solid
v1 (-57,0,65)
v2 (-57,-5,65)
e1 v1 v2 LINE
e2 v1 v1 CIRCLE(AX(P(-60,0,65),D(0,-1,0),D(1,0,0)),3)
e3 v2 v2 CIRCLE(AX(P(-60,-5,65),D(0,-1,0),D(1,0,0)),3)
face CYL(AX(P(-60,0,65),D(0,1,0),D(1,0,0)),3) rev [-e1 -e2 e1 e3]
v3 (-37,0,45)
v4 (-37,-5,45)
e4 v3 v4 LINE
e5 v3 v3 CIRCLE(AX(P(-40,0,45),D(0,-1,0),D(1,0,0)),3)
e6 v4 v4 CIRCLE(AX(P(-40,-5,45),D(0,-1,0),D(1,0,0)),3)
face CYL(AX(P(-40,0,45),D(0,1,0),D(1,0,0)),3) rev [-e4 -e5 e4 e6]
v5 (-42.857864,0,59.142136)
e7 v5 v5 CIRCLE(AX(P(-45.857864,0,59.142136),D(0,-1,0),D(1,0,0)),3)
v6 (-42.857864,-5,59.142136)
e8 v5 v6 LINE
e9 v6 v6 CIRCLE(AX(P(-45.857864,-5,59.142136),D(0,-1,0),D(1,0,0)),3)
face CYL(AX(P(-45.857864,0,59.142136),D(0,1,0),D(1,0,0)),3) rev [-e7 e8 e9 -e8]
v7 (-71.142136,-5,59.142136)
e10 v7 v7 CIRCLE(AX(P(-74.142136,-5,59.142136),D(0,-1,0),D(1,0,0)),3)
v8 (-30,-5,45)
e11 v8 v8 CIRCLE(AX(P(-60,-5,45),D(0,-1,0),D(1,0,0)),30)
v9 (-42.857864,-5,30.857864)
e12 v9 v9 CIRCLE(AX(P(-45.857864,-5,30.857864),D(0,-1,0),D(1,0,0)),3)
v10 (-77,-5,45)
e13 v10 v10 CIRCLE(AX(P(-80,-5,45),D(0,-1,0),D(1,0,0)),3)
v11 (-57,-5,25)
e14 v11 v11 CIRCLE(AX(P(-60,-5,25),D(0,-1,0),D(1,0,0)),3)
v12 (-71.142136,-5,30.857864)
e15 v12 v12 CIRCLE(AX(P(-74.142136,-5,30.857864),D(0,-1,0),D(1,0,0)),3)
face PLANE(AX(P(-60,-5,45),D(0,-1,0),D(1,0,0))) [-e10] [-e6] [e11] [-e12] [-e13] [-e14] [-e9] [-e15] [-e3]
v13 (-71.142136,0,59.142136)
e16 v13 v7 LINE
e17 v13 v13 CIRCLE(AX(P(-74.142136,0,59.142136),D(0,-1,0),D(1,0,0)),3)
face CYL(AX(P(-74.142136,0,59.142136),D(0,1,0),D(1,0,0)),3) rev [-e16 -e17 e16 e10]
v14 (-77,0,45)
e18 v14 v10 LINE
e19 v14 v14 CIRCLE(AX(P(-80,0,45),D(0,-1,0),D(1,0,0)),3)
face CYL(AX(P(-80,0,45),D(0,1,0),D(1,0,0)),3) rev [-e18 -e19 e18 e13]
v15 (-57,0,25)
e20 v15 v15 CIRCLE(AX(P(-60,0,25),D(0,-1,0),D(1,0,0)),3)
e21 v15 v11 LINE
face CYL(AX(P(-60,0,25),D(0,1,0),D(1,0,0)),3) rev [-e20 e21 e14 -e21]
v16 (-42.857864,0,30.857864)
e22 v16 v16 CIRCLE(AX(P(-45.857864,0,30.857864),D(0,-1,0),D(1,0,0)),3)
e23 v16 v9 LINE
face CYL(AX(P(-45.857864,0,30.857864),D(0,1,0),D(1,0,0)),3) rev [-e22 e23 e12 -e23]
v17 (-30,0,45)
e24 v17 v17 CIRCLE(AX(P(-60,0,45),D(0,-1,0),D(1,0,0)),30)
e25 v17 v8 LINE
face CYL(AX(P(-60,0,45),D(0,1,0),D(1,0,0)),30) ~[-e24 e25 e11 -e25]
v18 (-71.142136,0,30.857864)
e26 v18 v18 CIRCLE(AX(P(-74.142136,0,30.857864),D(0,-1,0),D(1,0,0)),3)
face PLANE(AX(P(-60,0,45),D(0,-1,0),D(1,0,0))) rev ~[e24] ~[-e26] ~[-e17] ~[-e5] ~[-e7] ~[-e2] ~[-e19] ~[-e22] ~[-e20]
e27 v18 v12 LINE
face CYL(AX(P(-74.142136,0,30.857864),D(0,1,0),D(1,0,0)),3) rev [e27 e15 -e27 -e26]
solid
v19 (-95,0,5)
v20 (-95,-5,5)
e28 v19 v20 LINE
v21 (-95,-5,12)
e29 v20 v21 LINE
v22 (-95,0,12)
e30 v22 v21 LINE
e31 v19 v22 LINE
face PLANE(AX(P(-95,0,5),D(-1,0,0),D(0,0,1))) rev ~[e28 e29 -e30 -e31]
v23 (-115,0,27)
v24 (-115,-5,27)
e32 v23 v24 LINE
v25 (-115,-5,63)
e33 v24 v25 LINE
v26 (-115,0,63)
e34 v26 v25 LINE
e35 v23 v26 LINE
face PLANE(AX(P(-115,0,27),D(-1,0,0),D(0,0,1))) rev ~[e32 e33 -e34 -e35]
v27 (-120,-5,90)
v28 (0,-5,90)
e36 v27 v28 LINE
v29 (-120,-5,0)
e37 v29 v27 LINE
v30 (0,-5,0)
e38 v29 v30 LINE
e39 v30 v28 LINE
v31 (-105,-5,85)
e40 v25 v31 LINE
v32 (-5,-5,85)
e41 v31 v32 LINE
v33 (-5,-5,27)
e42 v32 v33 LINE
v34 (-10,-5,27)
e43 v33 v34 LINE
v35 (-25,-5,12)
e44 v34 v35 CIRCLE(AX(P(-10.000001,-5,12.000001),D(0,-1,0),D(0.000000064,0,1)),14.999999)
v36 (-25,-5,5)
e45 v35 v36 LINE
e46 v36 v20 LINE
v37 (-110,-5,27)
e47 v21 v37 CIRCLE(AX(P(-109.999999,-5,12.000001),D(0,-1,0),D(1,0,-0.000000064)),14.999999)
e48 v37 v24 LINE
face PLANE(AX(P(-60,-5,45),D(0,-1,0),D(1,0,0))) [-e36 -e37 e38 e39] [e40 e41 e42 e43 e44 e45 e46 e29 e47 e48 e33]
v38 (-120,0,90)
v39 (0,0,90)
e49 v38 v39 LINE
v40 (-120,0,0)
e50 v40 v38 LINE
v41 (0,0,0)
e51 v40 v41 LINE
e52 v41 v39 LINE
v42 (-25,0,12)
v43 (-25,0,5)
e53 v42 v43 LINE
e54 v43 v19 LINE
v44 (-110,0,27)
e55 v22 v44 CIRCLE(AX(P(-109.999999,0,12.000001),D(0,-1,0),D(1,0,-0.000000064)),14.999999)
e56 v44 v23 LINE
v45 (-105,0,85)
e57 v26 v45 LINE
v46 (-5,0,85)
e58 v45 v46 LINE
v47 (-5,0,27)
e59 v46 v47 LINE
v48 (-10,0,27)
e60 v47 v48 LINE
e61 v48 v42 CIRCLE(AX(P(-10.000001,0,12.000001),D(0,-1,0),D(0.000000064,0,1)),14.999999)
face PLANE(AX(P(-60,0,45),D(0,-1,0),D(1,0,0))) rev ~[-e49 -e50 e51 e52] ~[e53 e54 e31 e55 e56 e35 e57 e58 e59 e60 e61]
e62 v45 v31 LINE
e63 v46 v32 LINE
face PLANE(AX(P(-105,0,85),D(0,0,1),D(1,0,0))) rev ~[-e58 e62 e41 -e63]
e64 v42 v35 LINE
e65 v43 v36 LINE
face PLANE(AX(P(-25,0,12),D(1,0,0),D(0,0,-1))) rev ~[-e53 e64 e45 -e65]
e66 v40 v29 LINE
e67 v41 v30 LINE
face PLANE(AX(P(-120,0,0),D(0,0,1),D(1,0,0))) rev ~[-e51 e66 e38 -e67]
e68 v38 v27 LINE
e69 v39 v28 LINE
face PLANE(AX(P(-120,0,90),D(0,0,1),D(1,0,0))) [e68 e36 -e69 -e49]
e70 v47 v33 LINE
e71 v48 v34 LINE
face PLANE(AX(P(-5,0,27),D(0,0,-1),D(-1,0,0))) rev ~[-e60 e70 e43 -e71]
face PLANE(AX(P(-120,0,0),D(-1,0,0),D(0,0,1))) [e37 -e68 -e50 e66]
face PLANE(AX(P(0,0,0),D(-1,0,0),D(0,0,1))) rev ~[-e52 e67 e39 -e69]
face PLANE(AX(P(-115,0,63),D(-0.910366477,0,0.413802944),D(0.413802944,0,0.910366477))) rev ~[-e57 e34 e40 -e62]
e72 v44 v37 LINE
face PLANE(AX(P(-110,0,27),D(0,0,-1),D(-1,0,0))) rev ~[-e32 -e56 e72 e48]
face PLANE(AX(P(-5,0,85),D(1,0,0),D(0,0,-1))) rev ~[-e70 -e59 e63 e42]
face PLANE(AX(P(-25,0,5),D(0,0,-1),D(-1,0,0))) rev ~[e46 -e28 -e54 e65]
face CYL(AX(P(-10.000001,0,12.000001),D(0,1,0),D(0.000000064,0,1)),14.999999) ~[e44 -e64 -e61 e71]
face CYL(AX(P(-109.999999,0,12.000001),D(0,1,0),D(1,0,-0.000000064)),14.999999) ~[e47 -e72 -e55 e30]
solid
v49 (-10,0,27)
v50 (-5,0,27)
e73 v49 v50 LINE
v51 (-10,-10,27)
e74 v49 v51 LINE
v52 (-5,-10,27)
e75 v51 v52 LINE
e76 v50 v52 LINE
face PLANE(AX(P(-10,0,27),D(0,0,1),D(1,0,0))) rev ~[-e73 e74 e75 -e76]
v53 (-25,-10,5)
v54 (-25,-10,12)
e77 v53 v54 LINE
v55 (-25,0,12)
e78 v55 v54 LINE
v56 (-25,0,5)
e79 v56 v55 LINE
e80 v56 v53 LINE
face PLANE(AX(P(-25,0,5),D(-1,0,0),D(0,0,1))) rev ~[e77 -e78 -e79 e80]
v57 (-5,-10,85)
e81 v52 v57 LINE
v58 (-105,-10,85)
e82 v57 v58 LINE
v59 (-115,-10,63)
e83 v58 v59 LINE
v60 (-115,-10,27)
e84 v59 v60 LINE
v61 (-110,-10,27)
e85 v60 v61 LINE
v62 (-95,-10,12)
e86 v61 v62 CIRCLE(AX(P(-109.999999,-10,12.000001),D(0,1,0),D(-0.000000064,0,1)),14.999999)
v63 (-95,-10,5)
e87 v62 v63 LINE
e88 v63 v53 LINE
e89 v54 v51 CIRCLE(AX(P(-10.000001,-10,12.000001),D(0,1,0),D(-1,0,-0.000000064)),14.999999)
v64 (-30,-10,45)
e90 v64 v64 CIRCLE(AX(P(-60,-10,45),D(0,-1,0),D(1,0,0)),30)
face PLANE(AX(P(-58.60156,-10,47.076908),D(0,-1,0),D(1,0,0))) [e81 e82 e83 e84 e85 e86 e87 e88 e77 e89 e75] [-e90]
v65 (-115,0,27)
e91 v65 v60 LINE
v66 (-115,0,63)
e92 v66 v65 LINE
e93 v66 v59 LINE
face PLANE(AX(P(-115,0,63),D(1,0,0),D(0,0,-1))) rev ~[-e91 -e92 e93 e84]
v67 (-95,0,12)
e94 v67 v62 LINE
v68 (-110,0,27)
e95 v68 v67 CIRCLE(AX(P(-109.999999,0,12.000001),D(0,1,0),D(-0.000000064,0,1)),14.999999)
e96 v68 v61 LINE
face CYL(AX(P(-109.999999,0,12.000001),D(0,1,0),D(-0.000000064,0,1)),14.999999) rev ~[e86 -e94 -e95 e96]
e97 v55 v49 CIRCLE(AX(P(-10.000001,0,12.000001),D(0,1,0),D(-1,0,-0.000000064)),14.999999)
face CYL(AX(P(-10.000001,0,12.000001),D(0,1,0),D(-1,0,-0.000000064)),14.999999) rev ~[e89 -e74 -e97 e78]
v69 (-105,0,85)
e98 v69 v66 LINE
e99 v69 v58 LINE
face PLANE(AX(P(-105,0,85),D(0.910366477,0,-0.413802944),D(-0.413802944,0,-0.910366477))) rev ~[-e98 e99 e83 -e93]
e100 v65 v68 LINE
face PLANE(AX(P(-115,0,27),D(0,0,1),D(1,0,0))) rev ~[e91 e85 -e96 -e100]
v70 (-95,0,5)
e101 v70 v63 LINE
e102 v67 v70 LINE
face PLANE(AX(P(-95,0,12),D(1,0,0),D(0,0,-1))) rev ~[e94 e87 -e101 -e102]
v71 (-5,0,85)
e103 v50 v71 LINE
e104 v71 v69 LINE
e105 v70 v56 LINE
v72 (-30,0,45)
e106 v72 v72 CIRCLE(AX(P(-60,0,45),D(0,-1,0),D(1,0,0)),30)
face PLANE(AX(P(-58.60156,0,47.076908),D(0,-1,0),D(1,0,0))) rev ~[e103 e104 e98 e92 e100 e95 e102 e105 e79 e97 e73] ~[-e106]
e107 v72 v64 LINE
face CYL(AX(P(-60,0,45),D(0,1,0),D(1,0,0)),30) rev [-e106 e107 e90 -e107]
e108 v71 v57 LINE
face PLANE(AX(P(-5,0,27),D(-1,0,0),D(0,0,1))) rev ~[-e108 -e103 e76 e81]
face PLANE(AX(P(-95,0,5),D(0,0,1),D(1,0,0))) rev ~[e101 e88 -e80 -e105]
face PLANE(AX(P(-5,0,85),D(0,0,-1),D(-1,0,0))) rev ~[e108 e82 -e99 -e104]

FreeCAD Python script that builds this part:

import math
import FreeCAD as App
import Part
import Sketcher

doc = App.newDocument("Part")
body = doc.addObject("PartDesign::Body", "Body")
body.AllowCompound = True

sketch1 = body.newObject("Sketcher::SketchObject", "Sketch")
sketch1.AttachmentSupport = (doc.getObject("XZ_Plane"), [""])
sketch1.MapMode = "FlatFace"
sketch1.addGeometry(Part.LineSegment(App.Vector(-120, 90, 0), App.Vector(-120, 0, 0)), False)
sketch1.addGeometry(Part.LineSegment(App.Vector(-120, 0, 0), App.Vector(0, 0, 0)), False)
sketch1.addGeometry(Part.LineSegment(App.Vector(0, 0, 0), App.Vector(0, 90, 0)), False)
sketch1.addGeometry(Part.LineSegment(App.Vector(0, 90, 0), App.Vector(-120, 90, 0)), False)
sketch1.addGeometry(Part.ArcOfCircle(Part.Circle(App.Vector(-110, 12, 0), App.Vector(0, 0, 1), 15), math.radians(0), math.radians(90)), False)
sketch1.addGeometry(Part.LineSegment(App.Vector(-110, 27, 0), App.Vector(-115, 27, 0)), False)
sketch1.addGeometry(Part.LineSegment(App.Vector(-115, 27, 0), App.Vector(-115, 63, 0)), False)
sketch1.addGeometry(Part.LineSegment(App.Vector(-115, 63, 0), App.Vector(-105, 85, 0)), False)
sketch1.addGeometry(Part.LineSegment(App.Vector(-105, 85, 0), App.Vector(-5, 85, 0)), False)
sketch1.addGeometry(Part.LineSegment(App.Vector(-5, 85, 0), App.Vector(-5, 27, 0)), False)
sketch1.addGeometry(Part.LineSegment(App.Vector(-5, 27, 0), App.Vector(-10, 27, 0)), False)
sketch1.addGeometry(Part.ArcOfCircle(Part.Circle(App.Vector(-10, 12, 0), App.Vector(0, 0, 1), 15), math.radians(90), math.radians(180)), False)
sketch1.addGeometry(Part.LineSegment(App.Vector(-25, 12, 0), App.Vector(-25, 5, 0)), False)
sketch1.addGeometry(Part.LineSegment(App.Vector(-25, 5, 0), App.Vector(-95, 5, 0)), False)
sketch1.addGeometry(Part.LineSegment(App.Vector(-95, 5, 0), App.Vector(-95, 12, 0)), False)
sketch1.addGeometry(Part.Circle(App.Vector(-60, 45, 0), App.Vector(0, 0, 1), 30), False)
sketch1.addGeometry(Part.Circle(App.Vector(-74.1, 30.9, 0), App.Vector(0, 0, 1), 3), False)
sketch1.addGeometry(Part.Circle(App.Vector(-60, 25, 0), App.Vector(0, 0, 1), 3), False)
sketch1.addGeometry(Part.Circle(App.Vector(-45.9, 30.9, 0), App.Vector(0, 0, 1), 3), False)
sketch1.addGeometry(Part.Circle(App.Vector(-80, 45, 0), App.Vector(0, 0, 1), 3), False)
sketch1.addGeometry(Part.Circle(App.Vector(-74.1, 59.1, 0), App.Vector(0, 0, 1), 3), False)
sketch1.addGeometry(Part.Circle(App.Vector(-40, 45, 0), App.Vector(0, 0, 1), 3), False)
sketch1.addGeometry(Part.Circle(App.Vector(-60, 65, 0), App.Vector(0, 0, 1), 3), False)
sketch1.addGeometry(Part.Circle(App.Vector(-45.9, 59.1, 0), App.Vector(0, 0, 1), 3), False)
sketch1.addConstraint(Sketcher.Constraint("Coincident", 0, 2, 1, 1))
sketch1.addConstraint(Sketcher.Constraint("Coincident", 1, 2, 2, 1))
sketch1.addConstraint(Sketcher.Constraint("Coincident", 2, 2, 3, 1))
sketch1.addConstraint(Sketcher.Constraint("Coincident", 3, 2, 0, 1))
sketch1.addConstraint(Sketcher.Constraint("Tangent", 4, 2, 5, 1))
sketch1.addConstraint(Sketcher.Constraint("Coincident", 5, 2, 6, 1))
sketch1.addConstraint(Sketcher.Constraint("Coincident", 6, 2, 7, 1))
sketch1.addConstraint(Sketcher.Constraint("Coincident", 7, 2, 8, 1))
sketch1.addConstraint(Sketcher.Constraint("Coincident", 8, 2, 9, 1))
sketch1.addConstraint(Sketcher.Constraint("Coincident", 9, 2, 10, 1))
sketch1.addConstraint(Sketcher.Constraint("Tangent", 10, 2, 11, 1))
sketch1.addConstraint(Sketcher.Constraint("Tangent", 11, 2, 12, 1))
sketch1.addConstraint(Sketcher.Constraint("Coincident", 12, 2, 13, 1))
sketch1.addConstraint(Sketcher.Constraint("Coincident", 13, 2, 14, 1))
sketch1.addConstraint(Sketcher.Constraint("Tangent", 14, 2, 4, 1))
sketch1.addConstraint(Sketcher.Constraint("Vertical", 0))
sketch1.addConstraint(Sketcher.Constraint("Horizontal", 1))
sketch1.addConstraint(Sketcher.Constraint("Vertical", 2))
sketch1.addConstraint(Sketcher.Constraint("Horizontal", 3))
sketch1.addConstraint(Sketcher.Constraint("Horizontal", 5))
sketch1.addConstraint(Sketcher.Constraint("Vertical", 6))
sketch1.addConstraint(Sketcher.Constraint("Horizontal", 8))
sketch1.addConstraint(Sketcher.Constraint("Vertical", 9))
sketch1.addConstraint(Sketcher.Constraint("Horizontal", 10))
sketch1.addConstraint(Sketcher.Constraint("Vertical", 12))
sketch1.addConstraint(Sketcher.Constraint("Horizontal", 13))
sketch1.addConstraint(Sketcher.Constraint("Vertical", 14))
sketch1.addConstraint(Sketcher.Constraint("Coincident", 1, 2, -1, 1))
sketch1.addConstraint(Sketcher.Constraint("Equal", 4, 11))
sketch1.addConstraint(Sketcher.Constraint("Equal", 16, 17))
sketch1.addConstraint(Sketcher.Constraint("Equal", 17, 18))
sketch1.addConstraint(Sketcher.Constraint("Equal", 18, 19))
sketch1.addConstraint(Sketcher.Constraint("Equal", 19, 20))
sketch1.addConstraint(Sketcher.Constraint("Equal", 20, 21))
sketch1.addConstraint(Sketcher.Constraint("Equal", 21, 22))
sketch1.addConstraint(Sketcher.Constraint("Equal", 22, 23))
sketch1.addConstraint(Sketcher.Constraint("Horizontal", 4, 3, 11, 3))
sketch1.addConstraint(Sketcher.Constraint("Horizontal", 16, 3, 18, 3))
sketch1.addConstraint(Sketcher.Constraint("Horizontal", 15, 3, 19, 3))
sketch1.addConstraint(Sketcher.Constraint("Horizontal", 19, 3, 21, 3))
sketch1.addConstraint(Sketcher.Constraint("Horizontal", 20, 3, 23, 3))
sketch1.addConstraint(Sketcher.Constraint("Vertical", 15, 3, 17, 3))
sketch1.addConstraint(Sketcher.Constraint("Vertical", 16, 3, 20, 3))
sketch1.addConstraint(Sketcher.Constraint("Vertical", 17, 3, 22, 3))
sketch1.addConstraint(Sketcher.Constraint("Vertical", 18, 3, 23, 3))
sketch1.addConstraint(Sketcher.Constraint("Equal", 5, 10))
sketch1.addConstraint(Sketcher.Constraint("Diameter", 15, 60.0))
sketch1.addConstraint(Sketcher.Constraint("Diameter", 16, 6.0))
sketch1.addConstraint(Sketcher.Constraint("Radius", 4, 14.999999))
sketch1.addConstraint(Sketcher.Constraint("DistanceX", 1, 1, 1, 2, 120.0))
sketch1.addConstraint(Sketcher.Constraint("DistanceX", 5, 2, 5, 1, 5.0))
sketch1.addConstraint(Sketcher.Constraint("DistanceX", 8, 1, 8, 2, 100.0))
sketch1.addConstraint(Sketcher.Constraint("DistanceX", 13, 2, 13, 1, 70.0))
sketch1.addConstraint(Sketcher.Constraint("DistanceY", 0, 2, 0, 1, 90.0))
sketch1.addConstraint(Sketcher.Constraint("DistanceY", 6, 1, 6, 2, 36.0))
sketch1.addConstraint(Sketcher.Constraint("DistanceY", 9, 2, 9, 1, 58.0))
sketch1.addConstraint(Sketcher.Constraint("DistanceY", 12, 2, 12, 1, 7.0))
sketch1.addConstraint(Sketcher.Constraint("DistanceX", 4, 3, -1, 1, 109.999999))
sketch1.addConstraint(Sketcher.Constraint("DistanceY", -1, 1, 4, 3, 12.000001))
sketch1.addConstraint(Sketcher.Constraint("DistanceX", 15, 3, -1, 1, 60.0))
sketch1.addConstraint(Sketcher.Constraint("DistanceY", -1, 1, 15, 3, 45.0))
sketch1.addConstraint(Sketcher.Constraint("DistanceY", -1, 1, 17, 3, 25.0))
sketch1.addConstraint(Sketcher.Constraint("DistanceX", 19, 3, -1, 1, 80.0))
sketch1.addConstraint(Sketcher.Constraint("DistanceX", 21, 3, -1, 1, 40.0))
sketch1.addConstraint(Sketcher.Constraint("DistanceY", -1, 1, 22, 3, 65.0))
sketch1.addConstraint(Sketcher.Constraint("DistanceX", 16, 3, 18, 3, 28.284272))
sketch1.addConstraint(Sketcher.Constraint("DistanceX", 16, 3, -1, 1, 74.142136))
sketch1.addConstraint(Sketcher.Constraint("DistanceY", -1, 1, 16, 3, 30.857864))
sketch1.addConstraint(Sketcher.Constraint("DistanceY", -1, 1, 20, 3, 59.142136))
pad1 = body.newObject("PartDesign::Pad", "Pad")
pad1.Profile = sketch1
pad1.Length = 5
body2 = doc.addObject("PartDesign::Body", "Body001")

sketch2 = body2.newObject("Sketcher::SketchObject", "Sketch001")
sketch2.AttachmentSupport = (doc.getObject("XZ_Plane001"), [""])
sketch2.MapMode = "FlatFace"
sketch2.addGeometry(Part.LineSegment(App.Vector(-115, 63, 0), App.Vector(-115, 27, 0)), False)
sketch2.addGeometry(Part.LineSegment(App.Vector(-115, 27, 0), App.Vector(-110, 27, 0)), False)
sketch2.addGeometry(Part.ArcOfCircle(Part.Circle(App.Vector(-110, 12, 0), App.Vector(0, 0, 1), 15), math.radians(0), math.radians(90)), False)
sketch2.addGeometry(Part.LineSegment(App.Vector(-95, 12, 0), App.Vector(-95, 5, 0)), False)
sketch2.addGeometry(Part.LineSegment(App.Vector(-95, 5, 0), App.Vector(-25, 5, 0)), False)
sketch2.addGeometry(Part.LineSegment(App.Vector(-25, 5, 0), App.Vector(-25, 12, 0)), False)
sketch2.addGeometry(Part.ArcOfCircle(Part.Circle(App.Vector(-10, 12, 0), App.Vector(0, 0, 1), 15), math.radians(90), math.radians(180)), False)
sketch2.addGeometry(Part.LineSegment(App.Vector(-10, 27, 0), App.Vector(-5, 27, 0)), False)
sketch2.addGeometry(Part.LineSegment(App.Vector(-5, 27, 0), App.Vector(-5, 85, 0)), False)
sketch2.addGeometry(Part.LineSegment(App.Vector(-5, 85, 0), App.Vector(-105, 85, 0)), False)
sketch2.addGeometry(Part.LineSegment(App.Vector(-105, 85, 0), App.Vector(-115, 63, 0)), False)
sketch2.addGeometry(Part.Circle(App.Vector(-60, 45, 0), App.Vector(0, 0, 1), 30), False)
sketch2.addConstraint(Sketcher.Constraint("Coincident", 0, 2, 1, 1))
sketch2.addConstraint(Sketcher.Constraint("Tangent", 1, 2, 2, 2))
sketch2.addConstraint(Sketcher.Constraint("Tangent", 2, 1, 3, 1))
sketch2.addConstraint(Sketcher.Constraint("Coincident", 3, 2, 4, 1))
sketch2.addConstraint(Sketcher.Constraint("Coincident", 4, 2, 5, 1))
sketch2.addConstraint(Sketcher.Constraint("Tangent", 5, 2, 6, 2))
sketch2.addConstraint(Sketcher.Constraint("Tangent", 6, 1, 7, 1))
sketch2.addConstraint(Sketcher.Constraint("Coincident", 7, 2, 8, 1))
sketch2.addConstraint(Sketcher.Constraint("Coincident", 8, 2, 9, 1))
sketch2.addConstraint(Sketcher.Constraint("Coincident", 9, 2, 10, 1))
sketch2.addConstraint(Sketcher.Constraint("Coincident", 10, 2, 0, 1))
sketch2.addConstraint(Sketcher.Constraint("Vertical", 0))
sketch2.addConstraint(Sketcher.Constraint("Horizontal", 1))
sketch2.addConstraint(Sketcher.Constraint("Vertical", 3))
sketch2.addConstraint(Sketcher.Constraint("Horizontal", 4))
sketch2.addConstraint(Sketcher.Constraint("Vertical", 5))
sketch2.addConstraint(Sketcher.Constraint("Horizontal", 7))
sketch2.addConstraint(Sketcher.Constraint("Vertical", 8))
sketch2.addConstraint(Sketcher.Constraint("Horizontal", 9))
sketch2.addConstraint(Sketcher.Constraint("Equal", 2, 6))
sketch2.addConstraint(Sketcher.Constraint("Horizontal", 2, 3, 6, 3))
sketch2.addConstraint(Sketcher.Constraint("Equal", 1, 7))
sketch2.addConstraint(Sketcher.Constraint("Diameter", 11, 60.0))
sketch2.addConstraint(Sketcher.Constraint("Radius", 2, 14.999999))
sketch2.addConstraint(Sketcher.Constraint("DistanceX", 1, 1, 1, 2, 5.0))
sketch2.addConstraint(Sketcher.Constraint("DistanceX", 4, 1, 4, 2, 70.0))
sketch2.addConstraint(Sketcher.Constraint("DistanceX", 9, 2, 9, 1, 100.0))
sketch2.addConstraint(Sketcher.Constraint("DistanceY", 0, 2, 0, 1, 36.0))
sketch2.addConstraint(Sketcher.Constraint("DistanceY", 3, 2, 3, 1, 7.0))
sketch2.addConstraint(Sketcher.Constraint("DistanceY", 8, 1, 8, 2, 58.0))
sketch2.addConstraint(Sketcher.Constraint("DistanceX", 2, 3, -1, 1, 109.999999))
sketch2.addConstraint(Sketcher.Constraint("DistanceY", -1, 1, 2, 3, 12.000001))
sketch2.addConstraint(Sketcher.Constraint("DistanceX", 11, 3, -1, 1, 60.0))
sketch2.addConstraint(Sketcher.Constraint("DistanceY", -1, 1, 11, 3, 45.0))
pad2 = body2.newObject("PartDesign::Pad", "Pad001")
pad2.Profile = sketch2
pad2.Length = 10

doc.recompute()
